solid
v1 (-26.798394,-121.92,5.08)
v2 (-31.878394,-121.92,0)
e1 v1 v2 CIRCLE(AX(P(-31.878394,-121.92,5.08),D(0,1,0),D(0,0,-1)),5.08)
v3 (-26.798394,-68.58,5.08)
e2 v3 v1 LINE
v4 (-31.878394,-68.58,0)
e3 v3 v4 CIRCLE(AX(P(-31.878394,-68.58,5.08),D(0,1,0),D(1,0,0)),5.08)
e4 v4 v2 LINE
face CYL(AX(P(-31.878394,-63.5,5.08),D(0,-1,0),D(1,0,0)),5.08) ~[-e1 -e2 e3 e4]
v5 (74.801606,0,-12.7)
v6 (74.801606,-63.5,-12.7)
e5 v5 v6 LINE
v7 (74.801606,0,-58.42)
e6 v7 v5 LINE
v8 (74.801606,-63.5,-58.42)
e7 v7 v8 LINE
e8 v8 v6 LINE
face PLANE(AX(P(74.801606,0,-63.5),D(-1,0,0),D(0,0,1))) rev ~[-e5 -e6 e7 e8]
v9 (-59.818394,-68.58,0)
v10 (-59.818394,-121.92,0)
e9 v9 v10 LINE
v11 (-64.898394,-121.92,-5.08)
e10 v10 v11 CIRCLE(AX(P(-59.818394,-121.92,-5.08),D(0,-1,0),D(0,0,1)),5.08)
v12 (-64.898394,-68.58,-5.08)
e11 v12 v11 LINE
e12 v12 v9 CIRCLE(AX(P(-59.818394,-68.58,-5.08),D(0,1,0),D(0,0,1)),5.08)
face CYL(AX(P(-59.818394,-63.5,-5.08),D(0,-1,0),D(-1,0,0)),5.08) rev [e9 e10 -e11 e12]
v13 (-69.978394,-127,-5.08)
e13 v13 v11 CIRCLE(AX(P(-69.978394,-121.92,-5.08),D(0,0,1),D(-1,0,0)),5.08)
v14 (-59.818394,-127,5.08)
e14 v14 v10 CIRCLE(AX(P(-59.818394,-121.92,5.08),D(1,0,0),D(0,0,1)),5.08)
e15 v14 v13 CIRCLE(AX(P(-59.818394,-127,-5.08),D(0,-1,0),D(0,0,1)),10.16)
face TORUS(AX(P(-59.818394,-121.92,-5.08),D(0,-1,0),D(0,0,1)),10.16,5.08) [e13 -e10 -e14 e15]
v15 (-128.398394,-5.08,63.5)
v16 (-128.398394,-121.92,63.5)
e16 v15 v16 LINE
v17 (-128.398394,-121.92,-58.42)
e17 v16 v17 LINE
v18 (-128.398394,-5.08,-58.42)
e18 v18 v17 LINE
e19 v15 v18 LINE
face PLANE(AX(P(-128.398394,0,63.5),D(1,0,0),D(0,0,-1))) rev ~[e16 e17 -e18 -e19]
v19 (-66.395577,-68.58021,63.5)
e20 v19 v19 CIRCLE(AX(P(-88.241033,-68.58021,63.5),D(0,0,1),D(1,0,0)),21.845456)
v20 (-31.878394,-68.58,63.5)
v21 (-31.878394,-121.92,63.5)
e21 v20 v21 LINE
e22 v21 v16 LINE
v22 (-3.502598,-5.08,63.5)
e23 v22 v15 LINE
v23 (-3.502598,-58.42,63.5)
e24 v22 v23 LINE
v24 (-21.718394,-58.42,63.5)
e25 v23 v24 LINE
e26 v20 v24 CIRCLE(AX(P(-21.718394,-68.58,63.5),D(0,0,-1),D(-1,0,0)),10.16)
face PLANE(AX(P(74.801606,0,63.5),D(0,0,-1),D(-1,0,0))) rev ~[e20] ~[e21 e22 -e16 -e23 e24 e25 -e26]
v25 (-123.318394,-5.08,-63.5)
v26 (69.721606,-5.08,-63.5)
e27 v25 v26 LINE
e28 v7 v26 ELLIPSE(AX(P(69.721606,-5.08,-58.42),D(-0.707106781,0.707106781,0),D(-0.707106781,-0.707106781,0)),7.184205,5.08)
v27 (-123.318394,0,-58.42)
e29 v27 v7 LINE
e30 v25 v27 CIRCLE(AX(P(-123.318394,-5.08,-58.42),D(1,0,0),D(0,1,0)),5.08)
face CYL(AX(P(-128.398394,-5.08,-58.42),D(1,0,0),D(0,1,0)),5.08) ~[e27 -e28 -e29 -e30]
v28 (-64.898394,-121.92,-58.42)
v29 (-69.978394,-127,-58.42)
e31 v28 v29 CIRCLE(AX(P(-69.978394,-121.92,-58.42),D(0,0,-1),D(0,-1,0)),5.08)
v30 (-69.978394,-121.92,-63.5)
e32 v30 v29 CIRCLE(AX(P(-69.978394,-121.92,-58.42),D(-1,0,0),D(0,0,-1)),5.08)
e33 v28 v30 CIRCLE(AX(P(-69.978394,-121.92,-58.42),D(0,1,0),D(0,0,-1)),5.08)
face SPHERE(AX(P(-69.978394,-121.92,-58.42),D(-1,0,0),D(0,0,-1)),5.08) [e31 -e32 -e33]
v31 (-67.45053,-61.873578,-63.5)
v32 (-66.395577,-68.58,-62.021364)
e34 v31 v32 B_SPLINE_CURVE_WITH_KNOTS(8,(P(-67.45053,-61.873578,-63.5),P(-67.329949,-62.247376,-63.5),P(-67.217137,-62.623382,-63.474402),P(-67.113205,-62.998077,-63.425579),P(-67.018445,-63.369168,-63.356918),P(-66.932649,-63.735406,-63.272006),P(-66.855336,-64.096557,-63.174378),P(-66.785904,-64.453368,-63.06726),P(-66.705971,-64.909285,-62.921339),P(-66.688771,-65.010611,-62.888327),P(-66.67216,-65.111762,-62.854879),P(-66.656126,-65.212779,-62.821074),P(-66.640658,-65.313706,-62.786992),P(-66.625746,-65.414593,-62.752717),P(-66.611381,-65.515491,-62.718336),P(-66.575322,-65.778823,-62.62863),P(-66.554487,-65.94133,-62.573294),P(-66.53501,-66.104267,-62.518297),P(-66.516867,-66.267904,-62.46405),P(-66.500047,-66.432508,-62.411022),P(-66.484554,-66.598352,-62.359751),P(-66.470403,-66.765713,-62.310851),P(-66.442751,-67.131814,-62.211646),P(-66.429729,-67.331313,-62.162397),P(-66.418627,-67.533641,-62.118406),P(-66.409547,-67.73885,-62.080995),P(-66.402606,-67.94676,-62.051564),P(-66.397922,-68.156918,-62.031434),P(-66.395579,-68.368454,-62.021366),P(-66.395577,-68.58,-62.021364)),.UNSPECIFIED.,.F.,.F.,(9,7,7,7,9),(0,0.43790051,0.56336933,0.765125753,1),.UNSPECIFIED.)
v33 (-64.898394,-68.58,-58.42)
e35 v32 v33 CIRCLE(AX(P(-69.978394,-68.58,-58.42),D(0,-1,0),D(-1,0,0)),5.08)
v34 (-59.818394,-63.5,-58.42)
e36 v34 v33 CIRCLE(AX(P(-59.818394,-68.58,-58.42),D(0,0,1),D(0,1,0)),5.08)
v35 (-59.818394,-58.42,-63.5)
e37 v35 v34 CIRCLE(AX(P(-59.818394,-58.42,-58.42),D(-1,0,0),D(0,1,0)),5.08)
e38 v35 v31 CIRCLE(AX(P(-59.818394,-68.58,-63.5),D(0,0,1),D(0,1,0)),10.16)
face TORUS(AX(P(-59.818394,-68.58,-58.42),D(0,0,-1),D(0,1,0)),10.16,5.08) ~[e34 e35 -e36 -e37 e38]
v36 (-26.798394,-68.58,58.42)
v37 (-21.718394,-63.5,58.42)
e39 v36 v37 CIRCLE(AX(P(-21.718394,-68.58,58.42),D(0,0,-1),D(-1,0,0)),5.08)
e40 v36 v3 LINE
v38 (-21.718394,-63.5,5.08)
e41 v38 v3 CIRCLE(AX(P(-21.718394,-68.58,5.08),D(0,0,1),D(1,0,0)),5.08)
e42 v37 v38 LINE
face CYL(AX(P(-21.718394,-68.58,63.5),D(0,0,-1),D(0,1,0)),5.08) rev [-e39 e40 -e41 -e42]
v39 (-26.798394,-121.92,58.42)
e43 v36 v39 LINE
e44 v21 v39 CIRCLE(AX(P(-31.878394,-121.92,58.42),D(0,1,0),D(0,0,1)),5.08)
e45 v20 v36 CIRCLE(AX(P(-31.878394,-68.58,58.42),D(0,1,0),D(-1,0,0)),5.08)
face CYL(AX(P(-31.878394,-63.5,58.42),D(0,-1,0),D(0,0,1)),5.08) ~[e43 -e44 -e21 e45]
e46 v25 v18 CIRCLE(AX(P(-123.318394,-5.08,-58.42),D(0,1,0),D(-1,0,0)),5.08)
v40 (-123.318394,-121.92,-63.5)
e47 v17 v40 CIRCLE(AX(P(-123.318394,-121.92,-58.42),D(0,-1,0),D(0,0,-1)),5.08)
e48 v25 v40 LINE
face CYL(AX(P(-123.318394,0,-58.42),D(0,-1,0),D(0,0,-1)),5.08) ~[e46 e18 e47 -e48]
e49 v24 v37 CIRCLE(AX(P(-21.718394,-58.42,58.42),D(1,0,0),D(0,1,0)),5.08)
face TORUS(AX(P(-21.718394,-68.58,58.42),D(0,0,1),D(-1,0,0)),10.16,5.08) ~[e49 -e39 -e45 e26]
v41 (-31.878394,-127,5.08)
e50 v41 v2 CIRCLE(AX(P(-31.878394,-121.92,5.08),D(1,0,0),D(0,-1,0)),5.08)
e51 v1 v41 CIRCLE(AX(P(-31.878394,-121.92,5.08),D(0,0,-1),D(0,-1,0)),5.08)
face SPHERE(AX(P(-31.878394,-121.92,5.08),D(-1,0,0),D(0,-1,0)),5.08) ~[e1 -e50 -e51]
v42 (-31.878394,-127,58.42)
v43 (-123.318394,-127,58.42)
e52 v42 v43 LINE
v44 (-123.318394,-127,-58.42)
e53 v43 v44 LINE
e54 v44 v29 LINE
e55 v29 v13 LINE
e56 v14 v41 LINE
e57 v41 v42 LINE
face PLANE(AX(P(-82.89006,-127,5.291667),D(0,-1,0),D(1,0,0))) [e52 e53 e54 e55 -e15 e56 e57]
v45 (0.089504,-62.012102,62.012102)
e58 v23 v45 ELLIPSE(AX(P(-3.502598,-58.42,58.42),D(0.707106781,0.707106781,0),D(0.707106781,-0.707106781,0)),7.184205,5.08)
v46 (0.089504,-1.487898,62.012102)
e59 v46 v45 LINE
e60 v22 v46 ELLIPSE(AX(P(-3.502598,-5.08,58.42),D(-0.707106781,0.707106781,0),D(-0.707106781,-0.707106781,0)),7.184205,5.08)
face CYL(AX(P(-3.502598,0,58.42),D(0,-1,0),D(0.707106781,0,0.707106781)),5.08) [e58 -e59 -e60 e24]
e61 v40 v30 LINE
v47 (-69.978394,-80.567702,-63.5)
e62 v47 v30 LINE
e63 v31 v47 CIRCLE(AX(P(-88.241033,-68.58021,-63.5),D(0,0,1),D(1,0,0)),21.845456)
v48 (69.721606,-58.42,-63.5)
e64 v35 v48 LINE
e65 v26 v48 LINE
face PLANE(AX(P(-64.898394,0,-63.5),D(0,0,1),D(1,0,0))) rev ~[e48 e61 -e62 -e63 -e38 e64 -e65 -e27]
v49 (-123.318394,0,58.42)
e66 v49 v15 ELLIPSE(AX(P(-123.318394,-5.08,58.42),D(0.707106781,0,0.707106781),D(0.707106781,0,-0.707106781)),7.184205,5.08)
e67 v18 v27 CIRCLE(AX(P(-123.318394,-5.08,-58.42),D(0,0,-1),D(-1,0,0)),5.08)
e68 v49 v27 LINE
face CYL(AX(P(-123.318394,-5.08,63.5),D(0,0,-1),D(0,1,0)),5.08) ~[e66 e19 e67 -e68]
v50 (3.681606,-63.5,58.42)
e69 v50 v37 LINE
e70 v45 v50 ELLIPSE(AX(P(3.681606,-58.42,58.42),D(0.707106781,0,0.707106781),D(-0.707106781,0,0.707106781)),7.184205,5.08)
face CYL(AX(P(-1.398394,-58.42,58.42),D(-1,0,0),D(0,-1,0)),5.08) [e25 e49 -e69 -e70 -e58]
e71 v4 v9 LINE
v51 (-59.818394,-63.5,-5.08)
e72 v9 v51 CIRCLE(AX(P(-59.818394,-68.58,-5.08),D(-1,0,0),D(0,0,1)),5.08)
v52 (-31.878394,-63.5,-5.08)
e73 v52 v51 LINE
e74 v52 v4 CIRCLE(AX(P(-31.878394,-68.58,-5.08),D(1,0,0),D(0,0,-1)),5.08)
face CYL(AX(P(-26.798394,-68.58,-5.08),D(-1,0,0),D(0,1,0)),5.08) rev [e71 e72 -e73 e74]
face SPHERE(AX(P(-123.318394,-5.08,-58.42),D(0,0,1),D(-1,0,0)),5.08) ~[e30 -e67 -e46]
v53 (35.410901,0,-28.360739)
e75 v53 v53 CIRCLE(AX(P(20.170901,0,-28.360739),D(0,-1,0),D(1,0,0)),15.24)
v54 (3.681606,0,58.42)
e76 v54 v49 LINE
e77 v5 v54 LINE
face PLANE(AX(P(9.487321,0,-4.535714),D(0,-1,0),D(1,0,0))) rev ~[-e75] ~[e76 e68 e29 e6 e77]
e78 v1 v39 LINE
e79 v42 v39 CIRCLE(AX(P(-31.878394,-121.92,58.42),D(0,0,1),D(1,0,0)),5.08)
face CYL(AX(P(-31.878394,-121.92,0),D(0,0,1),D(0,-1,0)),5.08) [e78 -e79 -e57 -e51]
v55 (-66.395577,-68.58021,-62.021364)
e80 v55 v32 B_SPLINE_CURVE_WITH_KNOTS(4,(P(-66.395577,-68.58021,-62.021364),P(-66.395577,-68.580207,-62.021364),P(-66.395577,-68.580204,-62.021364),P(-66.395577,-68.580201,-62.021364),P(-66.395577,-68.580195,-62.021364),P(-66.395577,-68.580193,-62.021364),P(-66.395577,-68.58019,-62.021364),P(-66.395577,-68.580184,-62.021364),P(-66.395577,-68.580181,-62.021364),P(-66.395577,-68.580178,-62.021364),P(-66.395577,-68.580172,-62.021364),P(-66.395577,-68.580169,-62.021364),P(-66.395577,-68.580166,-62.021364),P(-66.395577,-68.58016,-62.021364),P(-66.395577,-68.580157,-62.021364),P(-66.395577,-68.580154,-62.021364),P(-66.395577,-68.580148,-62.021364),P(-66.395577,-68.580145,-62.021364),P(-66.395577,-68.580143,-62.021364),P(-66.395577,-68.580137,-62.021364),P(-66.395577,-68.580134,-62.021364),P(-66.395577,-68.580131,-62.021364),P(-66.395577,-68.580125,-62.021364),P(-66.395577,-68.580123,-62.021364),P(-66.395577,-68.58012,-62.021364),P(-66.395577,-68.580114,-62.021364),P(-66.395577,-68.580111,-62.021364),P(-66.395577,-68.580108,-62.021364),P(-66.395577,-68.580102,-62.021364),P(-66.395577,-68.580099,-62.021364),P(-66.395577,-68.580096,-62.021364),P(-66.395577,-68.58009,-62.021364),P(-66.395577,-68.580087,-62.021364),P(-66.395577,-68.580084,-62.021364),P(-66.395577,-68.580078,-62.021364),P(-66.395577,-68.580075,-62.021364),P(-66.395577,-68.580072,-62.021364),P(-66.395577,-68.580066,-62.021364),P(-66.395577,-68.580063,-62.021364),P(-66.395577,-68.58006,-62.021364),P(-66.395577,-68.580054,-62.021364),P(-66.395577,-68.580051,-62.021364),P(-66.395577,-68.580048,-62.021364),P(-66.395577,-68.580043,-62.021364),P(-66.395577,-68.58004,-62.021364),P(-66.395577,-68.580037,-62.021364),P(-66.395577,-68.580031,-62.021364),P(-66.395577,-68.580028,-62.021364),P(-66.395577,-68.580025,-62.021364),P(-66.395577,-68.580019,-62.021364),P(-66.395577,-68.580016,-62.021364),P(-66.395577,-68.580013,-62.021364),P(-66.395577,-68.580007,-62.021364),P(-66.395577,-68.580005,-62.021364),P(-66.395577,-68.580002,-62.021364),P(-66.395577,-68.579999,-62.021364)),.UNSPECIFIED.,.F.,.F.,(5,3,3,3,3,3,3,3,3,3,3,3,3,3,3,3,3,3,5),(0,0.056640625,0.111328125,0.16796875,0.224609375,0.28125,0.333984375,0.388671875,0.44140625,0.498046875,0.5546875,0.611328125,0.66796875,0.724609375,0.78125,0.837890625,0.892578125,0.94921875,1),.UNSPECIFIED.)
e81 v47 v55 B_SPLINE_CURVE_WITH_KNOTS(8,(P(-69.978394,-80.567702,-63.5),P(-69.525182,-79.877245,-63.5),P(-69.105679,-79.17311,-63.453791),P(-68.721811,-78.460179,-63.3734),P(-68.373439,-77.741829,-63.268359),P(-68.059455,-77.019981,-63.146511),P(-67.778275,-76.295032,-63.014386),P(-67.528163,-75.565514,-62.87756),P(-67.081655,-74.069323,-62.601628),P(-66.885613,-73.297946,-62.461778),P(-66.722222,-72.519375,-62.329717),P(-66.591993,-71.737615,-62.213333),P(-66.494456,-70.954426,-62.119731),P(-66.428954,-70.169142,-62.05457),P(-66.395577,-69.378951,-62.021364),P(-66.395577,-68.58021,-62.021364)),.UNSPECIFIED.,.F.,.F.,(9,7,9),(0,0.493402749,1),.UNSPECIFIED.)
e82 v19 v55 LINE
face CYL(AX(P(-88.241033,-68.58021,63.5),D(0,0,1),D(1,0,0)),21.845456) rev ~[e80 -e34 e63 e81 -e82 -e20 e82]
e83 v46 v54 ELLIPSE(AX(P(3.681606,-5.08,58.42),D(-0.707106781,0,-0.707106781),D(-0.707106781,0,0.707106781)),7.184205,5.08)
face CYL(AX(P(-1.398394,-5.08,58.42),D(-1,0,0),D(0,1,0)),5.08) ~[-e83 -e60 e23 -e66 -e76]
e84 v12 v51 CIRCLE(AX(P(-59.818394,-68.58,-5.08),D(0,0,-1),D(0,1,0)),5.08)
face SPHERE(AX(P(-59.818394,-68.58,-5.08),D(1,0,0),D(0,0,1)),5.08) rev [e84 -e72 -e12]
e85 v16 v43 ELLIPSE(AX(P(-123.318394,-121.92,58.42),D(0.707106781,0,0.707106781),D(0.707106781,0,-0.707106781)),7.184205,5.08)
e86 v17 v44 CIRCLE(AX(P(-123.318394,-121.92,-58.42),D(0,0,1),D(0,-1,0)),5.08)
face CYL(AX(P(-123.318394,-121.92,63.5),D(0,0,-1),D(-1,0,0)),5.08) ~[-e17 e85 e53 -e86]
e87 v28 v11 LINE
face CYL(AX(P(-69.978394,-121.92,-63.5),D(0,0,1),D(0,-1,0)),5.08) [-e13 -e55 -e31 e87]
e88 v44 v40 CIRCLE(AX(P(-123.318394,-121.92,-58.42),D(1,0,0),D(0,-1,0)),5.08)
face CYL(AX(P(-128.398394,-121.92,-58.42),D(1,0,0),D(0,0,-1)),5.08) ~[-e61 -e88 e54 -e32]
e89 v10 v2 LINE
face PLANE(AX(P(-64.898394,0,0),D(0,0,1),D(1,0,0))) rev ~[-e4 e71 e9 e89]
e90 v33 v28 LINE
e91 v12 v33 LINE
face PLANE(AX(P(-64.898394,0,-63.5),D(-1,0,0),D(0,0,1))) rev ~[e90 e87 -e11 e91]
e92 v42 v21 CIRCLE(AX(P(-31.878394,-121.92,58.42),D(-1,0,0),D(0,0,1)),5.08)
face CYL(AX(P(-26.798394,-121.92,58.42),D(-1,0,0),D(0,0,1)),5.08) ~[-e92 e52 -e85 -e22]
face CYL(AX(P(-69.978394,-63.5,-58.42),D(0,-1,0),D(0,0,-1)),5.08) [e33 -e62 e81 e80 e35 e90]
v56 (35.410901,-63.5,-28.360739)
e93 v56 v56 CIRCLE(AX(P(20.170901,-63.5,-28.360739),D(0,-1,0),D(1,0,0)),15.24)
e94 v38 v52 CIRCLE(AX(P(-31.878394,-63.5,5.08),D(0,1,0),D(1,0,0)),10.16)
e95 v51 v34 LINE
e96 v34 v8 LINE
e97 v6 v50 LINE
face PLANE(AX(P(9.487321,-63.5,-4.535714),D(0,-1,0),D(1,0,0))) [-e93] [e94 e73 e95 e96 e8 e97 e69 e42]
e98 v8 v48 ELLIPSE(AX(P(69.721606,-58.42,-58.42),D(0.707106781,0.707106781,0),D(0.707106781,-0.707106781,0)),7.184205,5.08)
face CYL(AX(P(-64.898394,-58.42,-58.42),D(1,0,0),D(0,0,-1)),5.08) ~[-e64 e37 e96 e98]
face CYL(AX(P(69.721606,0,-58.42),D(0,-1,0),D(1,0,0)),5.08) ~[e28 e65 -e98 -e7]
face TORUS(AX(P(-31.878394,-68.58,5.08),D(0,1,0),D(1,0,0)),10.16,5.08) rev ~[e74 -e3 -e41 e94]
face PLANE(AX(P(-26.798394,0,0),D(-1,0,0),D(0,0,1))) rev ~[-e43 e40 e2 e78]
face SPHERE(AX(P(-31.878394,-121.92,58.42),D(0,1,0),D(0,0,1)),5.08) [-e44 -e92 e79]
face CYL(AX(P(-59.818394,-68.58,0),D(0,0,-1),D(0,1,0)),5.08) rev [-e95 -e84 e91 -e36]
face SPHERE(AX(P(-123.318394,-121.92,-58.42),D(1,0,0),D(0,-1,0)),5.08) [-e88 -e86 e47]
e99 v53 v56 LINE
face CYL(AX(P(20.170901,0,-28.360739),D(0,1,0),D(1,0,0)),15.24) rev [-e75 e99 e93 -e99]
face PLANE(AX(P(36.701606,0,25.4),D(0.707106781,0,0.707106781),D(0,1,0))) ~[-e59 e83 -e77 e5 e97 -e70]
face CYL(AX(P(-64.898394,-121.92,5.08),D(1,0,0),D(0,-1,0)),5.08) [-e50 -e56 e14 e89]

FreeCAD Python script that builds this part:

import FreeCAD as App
import Part
import Sketcher
Q = App.Units.Quantity


def edges_at(feature, points):
    """Names of the edges that pass closest to the given points."""
    edges = feature.Shape.Edges
    near = lambda p: min(range(len(edges)), key=lambda i: edges[i].distToShape(Part.Vertex(*p))[0])
    return sorted({f"Edge{near(p) + 1}" for p in points})

doc = App.newDocument("Part")
params = doc.addObject("Spreadsheet::Sheet", "Params")
for row, (alias, value) in enumerate([
    ("sketch1_width", "4 in"),
    ("sketch1_height", "5 in"),
    ("pad1_length", "5 in"),
    ("sketch2_diameter", "1.2 in"),
    ("sketch2_width", "4 in"),
    ("sketch2_height", "5 in"),
    ("sketch2_width2", "1.5 in"),
    ("pad2_length", "2.5 in"),
    ("chamfer_size", "3 in"),
    ("fillet_radius", "0.2 in"),
    ("pocket1_length", "9 in"),
], start=1):
    params.set(f"A{row}", alias)
    params.set(f"B{row}", "=" + value)
    params.setAlias(f"B{row}", alias)

body = doc.addObject("PartDesign::Body", "Body")

sketch1 = body.newObject("Sketcher::SketchObject", "Sketch")
sketch1.AttachmentSupport = (doc.getObject("XZ_Plane"), [""])
sketch1.MapMode = "FlatFace"
sketch1.addGeometry([
    Part.LineSegment(App.Vector(-27, 0, 0), App.Vector(-27, 64, 0)),
    Part.LineSegment(App.Vector(-27, 64, 0), App.Vector(-128, 64, 0)),
    Part.LineSegment(App.Vector(-128, 64, 0), App.Vector(-128, -64, 0)),
    Part.LineSegment(App.Vector(-128, -64, 0), App.Vector(-65, -64, 0)),
    Part.LineSegment(App.Vector(-65, -64, 0), App.Vector(-65, 0, 0)),
    Part.LineSegment(App.Vector(-65, 0, 0), App.Vector(-27, 0, 0)),
], False)
sketch1.addConstraint([
    Sketcher.Constraint("Coincident", 0, 2, 1, 1),
    Sketcher.Constraint("Coincident", 1, 2, 2, 1),
    Sketcher.Constraint("Coincident", 2, 2, 3, 1),
    Sketcher.Constraint("Coincident", 3, 2, 4, 1),
    Sketcher.Constraint("Coincident", 4, 2, 5, 1),
    Sketcher.Constraint("Coincident", 5, 2, 0, 1),
    Sketcher.Constraint("Vertical", 0),
    Sketcher.Constraint("Horizontal", 1),
    Sketcher.Constraint("Vertical", 2),
    Sketcher.Constraint("Horizontal", 3),
    Sketcher.Constraint("Vertical", 4),
    Sketcher.Constraint("Horizontal", 5),
    Sketcher.Constraint("PointOnObject", 4, 2, -1),
    Sketcher.Constraint("Equal", 3, 0),
    Sketcher.Constraint("Equal", 0, 4),
    Sketcher.Constraint("DistanceX", 1, 2, 1, 1, Q("4 in")),
    Sketcher.Constraint("DistanceY", 2, 2, 2, 1, Q("5 in")),
    Sketcher.Constraint("DistanceX", 0, 2, -1, 1, 26.798394),
])
sketch1.setExpression("Constraints[15]", "Params.sketch1_width")
sketch1.setExpression("Constraints[16]", "Params.sketch1_height")
pad1 = body.newObject("PartDesign::Pad", "Pad")
pad1.Profile = sketch1
pad1.setExpression("Length", "Params.pad1_length")

sketch2 = body.newObject("Sketcher::SketchObject", "Sketch001")
sketch2.AttachmentSupport = (doc.getObject("XZ_Plane"), [""])
sketch2.MapMode = "FlatFace"
sketch2.addGeometry([
    Part.LineSegment(App.Vector(75, -64, 0), App.Vector(75, 64, 0)),
    Part.LineSegment(App.Vector(75, 64, 0), App.Vector(-27, 64, 0)),
    Part.LineSegment(App.Vector(-27, 64, 0), App.Vector(-27, 0, 0)),
    Part.LineSegment(App.Vector(-27, 0, 0), App.Vector(-65, 0, 0)),
    Part.LineSegment(App.Vector(-65, 0, 0), App.Vector(-65, -64, 0)),
    Part.LineSegment(App.Vector(-65, -64, 0), App.Vector(75, -64, 0)),
    Part.Circle(App.Vector(20, -28, 0), App.Vector(0, 0, 1), 15),
], False)
sketch2.addConstraint([
    Sketcher.Constraint("Coincident", 0, 2, 1, 1),
    Sketcher.Constraint("Coincident", 1, 2, 2, 1),
    Sketcher.Constraint("Coincident", 2, 2, 3, 1),
    Sketcher.Constraint("Coincident", 3, 2, 4, 1),
    Sketcher.Constraint("Coincident", 4, 2, 5, 1),
    Sketcher.Constraint("Coincident", 5, 2, 0, 1),
    Sketcher.Constraint("Vertical", 0),
    Sketcher.Constraint("Horizontal", 1),
    Sketcher.Constraint("Vertical", 2),
    Sketcher.Constraint("Horizontal", 3),
    Sketcher.Constraint("Vertical", 4),
    Sketcher.Constraint("Horizontal", 5),
    Sketcher.Constraint("PointOnObject", 2, 2, -1),
    Sketcher.Constraint("Equal", 2, 4),
    Sketcher.Constraint("Diameter", 6, Q("1.2 in")),
    Sketcher.Constraint("DistanceX", 1, 2, 1, 1, Q("4 in")),
    Sketcher.Constraint("DistanceY", 0, 1, 0, 2, Q("5 in")),
    Sketcher.Constraint("DistanceX", 3, 2, 3, 1, Q("1.5 in")),
    Sketcher.Constraint("DistanceX", -1, 1, 6, 3, 20.170901),
    Sketcher.Constraint("DistanceY", 6, 3, -1, 1, 28.360739),
    Sketcher.Constraint("DistanceX", -1, 1, 0, 2, 74.801606),
])
sketch2.setExpression("Constraints[14]", "Params.sketch2_diameter")
sketch2.setExpression("Constraints[15]", "Params.sketch2_width")
sketch2.setExpression("Constraints[16]", "Params.sketch2_height")
sketch2.setExpression("Constraints[17]", "Params.sketch2_width2")
pad2 = body.newObject("PartDesign::Pad", "Pad001")
pad2.Profile = sketch2
pad2.setExpression("Length", "Params.pad2_length")
doc.recompute()

chamfer = body.newObject("PartDesign::Chamfer", "Chamfer")
chamfer.Base = (pad2, edges_at(pad2, [(74.802, -31.75, 63.5)]))
chamfer.setExpression("Size", "Params.chamfer_size")
doc.recompute()

fillet = body.newObject("PartDesign::Fillet", "Fillet")
fillet.Base = (chamfer, edges_at(chamfer, [
    (-1.398, -31.75, 63.5),
    (-128.398, 0, 0),
    (-26.798, -63.5, 31.75),
    (-45.848, -63.5, 0),
    (-64.898, -95.25, 0),
    (-26.798, -95.25, 63.5),
    (-14.098, -63.5, 63.5),
    (-64.898, 0, 63.5),
    (-96.648, -127, -63.5),
    (-128.398, -127, 0),
    (-77.598, -127, 63.5),
    (-64.898, -95.25, -63.5),
    (-45.848, -127, 0),
    (-64.898, -127, -31.75),
    (-64.898, -63.5, -31.75),
    (-128.398, -63.5, -63.5),
    (-26.798, -127, 31.75),
    (-26.798, -95.25, 0),
    (74.802, -31.75, -63.5),
    (-26.798, 0, -63.5),
    (4.952, -63.5, -63.5),
]))
fillet.setExpression("Radius", "Params.fillet_radius")

sketch3 = body.newObject("Sketcher::SketchObject", "Sketch002")
sketch3.AttachmentSupport = (doc.getObject("XY_Plane"), [""])
sketch3.MapMode = "FlatFace"
sketch3.AttachmentOffset = App.Placement(App.Vector(0, 0, 2.5 * 25.4), App.Rotation())
sketch3.addGeometry(Part.Circle(App.Vector(-88, -69, 0), App.Vector(0, 0, 1), 22), False)
sketch3.addConstraint([
    Sketcher.Constraint("Diameter", 0, 43.690913),
    Sketcher.Constraint("DistanceY", 0, 3, -1, 1, 68.58021),
    Sketcher.Constraint("DistanceX", 0, 3, -1, 1, 88.241033),
])
pocket1 = body.newObject("PartDesign::Pocket", "Pocket")
pocket1.Profile = sketch3
pocket1.setExpression("Length", "Params.pocket1_length")

doc.recompute()
